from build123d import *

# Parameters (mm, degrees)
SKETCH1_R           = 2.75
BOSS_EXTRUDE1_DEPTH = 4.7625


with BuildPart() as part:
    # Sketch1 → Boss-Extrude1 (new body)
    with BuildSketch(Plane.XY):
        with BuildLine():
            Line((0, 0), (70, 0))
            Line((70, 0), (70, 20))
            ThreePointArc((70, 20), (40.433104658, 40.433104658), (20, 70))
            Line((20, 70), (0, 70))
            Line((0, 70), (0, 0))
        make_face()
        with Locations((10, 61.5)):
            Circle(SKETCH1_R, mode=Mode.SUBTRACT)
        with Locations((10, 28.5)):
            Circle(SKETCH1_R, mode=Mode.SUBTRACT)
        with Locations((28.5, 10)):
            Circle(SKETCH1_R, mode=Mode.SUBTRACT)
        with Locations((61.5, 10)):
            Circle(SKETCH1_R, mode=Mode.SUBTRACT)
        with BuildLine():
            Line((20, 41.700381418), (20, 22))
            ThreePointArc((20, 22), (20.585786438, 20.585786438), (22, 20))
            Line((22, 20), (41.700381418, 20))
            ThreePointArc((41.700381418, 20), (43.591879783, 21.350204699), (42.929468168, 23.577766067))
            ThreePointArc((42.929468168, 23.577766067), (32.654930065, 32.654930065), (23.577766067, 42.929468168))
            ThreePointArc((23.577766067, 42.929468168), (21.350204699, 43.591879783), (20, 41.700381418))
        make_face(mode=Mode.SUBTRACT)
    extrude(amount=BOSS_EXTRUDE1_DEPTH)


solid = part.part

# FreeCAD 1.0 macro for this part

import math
import FreeCAD as App
import Part
import Sketcher

V = App.Vector

doc = App.newDocument("Part")
params = doc.addObject("Spreadsheet::Sheet", "Params")
for row, (alias, value) in enumerate([
    ("sketch1_radius", "100 mm"),
    ("sketch1_radius2", "2 mm"),
    ("sketch1_radius3", "111 mm"),
    ("sketch1_diameter", "5.5 mm"),
    ("sketch1_width", "70 mm"),
    ("pad1_length", "4.7625 mm"),
], start=1):
    params.set(f"A{row}", alias)
    params.set(f"B{row}", "=" + value)
    params.setAlias(f"B{row}", alias)

body = doc.addObject("PartDesign::Body", "Body")

# Sketch on XY plane
sketch1 = doc.addObject("Sketcher::SketchObject", "Sketch")
body.addObject(sketch1)
sketch1.AttachmentSupport = (doc.XY_Plane, [""])
sketch1.MapMode = "FlatFace"
sketch1.addGeometry([
    Part.LineSegment(V(0, 0, 0), V(70, 0, 0)),  # 0
    Part.LineSegment(V(70, 0, 0), V(70, 20, 0)),  # 1
    Part.ArcOfCircle(Part.Circle(V(111.1, 111.1, 0), V(0, 0, 1), 100), math.radians(-156), math.radians(-114)),  # 2
    Part.LineSegment(V(20, 70, 0), V(0, 70, 0)),  # 3
    Part.LineSegment(V(0, 70, 0), V(0, 0, 0)),  # 4
    Part.Circle(V(28.5, 10, 0), V(0, 0, 1), 2.8),  # 5
    Part.Circle(V(10, 28.5, 0), V(0, 0, 1), 2.8),  # 6
    Part.LineSegment(V(20, 22, 0), V(20, 41.7, 0)),  # 7
    Part.ArcOfCircle(Part.Circle(V(22, 41.7, 0), V(0, 0, 1), 2), math.radians(38), math.radians(180)),  # 8
    Part.ArcOfCircle(Part.Circle(V(111.1, 111.1, 0), V(0, 0, 1), 111), math.radians(-142.08), math.radians(-127.92)),  # 9
    Part.ArcOfCircle(Part.Circle(V(41.7, 22, 0), V(0, 0, 1), 2), math.radians(-90), math.radians(52)),  # 10
    Part.LineSegment(V(41.7, 20, 0), V(22, 20, 0)),  # 11
    Part.ArcOfCircle(Part.Circle(V(22, 22, 0), V(0, 0, 1), 2), math.radians(-180), math.radians(-90)),  # 12
    Part.Circle(V(61.5, 10, 0), V(0, 0, 1), 2.8),  # 13
    Part.Circle(V(10, 61.5, 0), V(0, 0, 1), 2.8),  # 14
], False)
sketch1.addConstraint([
    Sketcher.Constraint("Coincident", 0, 2, 1, 1),
    Sketcher.Constraint("Coincident", 1, 2, 2, 2),
    Sketcher.Constraint("Coincident", 2, 1, 3, 1),
    Sketcher.Constraint("Coincident", 3, 2, 4, 1),
    Sketcher.Constraint("Coincident", 4, 2, 0, 1),
    Sketcher.Constraint("Tangent", 7, 2, 8, 2),
    Sketcher.Constraint("Tangent", 8, 1, 9, 1),
    Sketcher.Constraint("Tangent", 9, 2, 10, 2),
    Sketcher.Constraint("Tangent", 10, 1, 11, 1),
    Sketcher.Constraint("Tangent", 11, 2, 12, 2),
    Sketcher.Constraint("Tangent", 12, 1, 7, 1),
    Sketcher.Constraint("Horizontal", 0),
    Sketcher.Constraint("Vertical", 1),
    Sketcher.Constraint("Horizontal", 3),
    Sketcher.Constraint("Vertical", 4),
    Sketcher.Constraint("Vertical", 7),
    Sketcher.Constraint("Horizontal", 11),
    Sketcher.Constraint("Coincident", 4, 2, -1, 1),
    Sketcher.Constraint("Coincident", 9, 3, 2, 3),
    Sketcher.Constraint("Equal", 5, 6),
    Sketcher.Constraint("Equal", 8, 10),
    Sketcher.Constraint("Equal", 10, 12),
    Sketcher.Constraint("Equal", 6, 13),
    Sketcher.Constraint("Equal", 13, 14),
    Sketcher.Constraint("Horizontal", 5, 3, 13, 3),
    Sketcher.Constraint("Horizontal", 1, 2, 10, 1),
    Sketcher.Constraint("Vertical", 6, 3, 14, 3),
    Sketcher.Constraint("Vertical", 2, 1, 7, 2),
    Sketcher.Constraint("Equal", 3, 1),
    Sketcher.Constraint("Equal", 0, 4),
    Sketcher.Constraint("Radius", 2, 100.0),
    Sketcher.Constraint("Radius", 8, 2.0),
    Sketcher.Constraint("Radius", 9, 111.0),
    Sketcher.Constraint("Diameter", 5, 5.5),
    Sketcher.Constraint("DistanceX", 0, 1, 0, 2, 70.0),
    Sketcher.Constraint("DistanceX", 3, 2, 3, 1, 20.0),
    Sketcher.Constraint("DistanceY", -1, 1, 5, 3, 10.0),
    Sketcher.Constraint("DistanceX", -1, 1, 6, 3, 10.0),
    Sketcher.Constraint("DistanceX", 5, 3, 13, 3, 33.0),
    Sketcher.Constraint("DistanceY", 6, 3, 14, 3, 33.0),
    Sketcher.Constraint("DistanceX", -1, 1, 5, 3, 28.5),
    Sketcher.Constraint("DistanceY", -1, 1, 6, 3, 28.5),
])
sketch1.setExpression("Constraints[30]", "Params.sketch1_radius")
sketch1.setExpression("Constraints[31]", "Params.sketch1_radius2")
sketch1.setExpression("Constraints[32]", "Params.sketch1_radius3")
sketch1.setExpression("Constraints[33]", "Params.sketch1_diameter")
sketch1.setExpression("Constraints[34]", "Params.sketch1_width")
pad1 = doc.addObject("PartDesign::Pad", "Pad")
body.addObject(pad1)
pad1.Profile = sketch1
pad1.setExpression("Length", "Params.pad1_length")

doc.recompute()
